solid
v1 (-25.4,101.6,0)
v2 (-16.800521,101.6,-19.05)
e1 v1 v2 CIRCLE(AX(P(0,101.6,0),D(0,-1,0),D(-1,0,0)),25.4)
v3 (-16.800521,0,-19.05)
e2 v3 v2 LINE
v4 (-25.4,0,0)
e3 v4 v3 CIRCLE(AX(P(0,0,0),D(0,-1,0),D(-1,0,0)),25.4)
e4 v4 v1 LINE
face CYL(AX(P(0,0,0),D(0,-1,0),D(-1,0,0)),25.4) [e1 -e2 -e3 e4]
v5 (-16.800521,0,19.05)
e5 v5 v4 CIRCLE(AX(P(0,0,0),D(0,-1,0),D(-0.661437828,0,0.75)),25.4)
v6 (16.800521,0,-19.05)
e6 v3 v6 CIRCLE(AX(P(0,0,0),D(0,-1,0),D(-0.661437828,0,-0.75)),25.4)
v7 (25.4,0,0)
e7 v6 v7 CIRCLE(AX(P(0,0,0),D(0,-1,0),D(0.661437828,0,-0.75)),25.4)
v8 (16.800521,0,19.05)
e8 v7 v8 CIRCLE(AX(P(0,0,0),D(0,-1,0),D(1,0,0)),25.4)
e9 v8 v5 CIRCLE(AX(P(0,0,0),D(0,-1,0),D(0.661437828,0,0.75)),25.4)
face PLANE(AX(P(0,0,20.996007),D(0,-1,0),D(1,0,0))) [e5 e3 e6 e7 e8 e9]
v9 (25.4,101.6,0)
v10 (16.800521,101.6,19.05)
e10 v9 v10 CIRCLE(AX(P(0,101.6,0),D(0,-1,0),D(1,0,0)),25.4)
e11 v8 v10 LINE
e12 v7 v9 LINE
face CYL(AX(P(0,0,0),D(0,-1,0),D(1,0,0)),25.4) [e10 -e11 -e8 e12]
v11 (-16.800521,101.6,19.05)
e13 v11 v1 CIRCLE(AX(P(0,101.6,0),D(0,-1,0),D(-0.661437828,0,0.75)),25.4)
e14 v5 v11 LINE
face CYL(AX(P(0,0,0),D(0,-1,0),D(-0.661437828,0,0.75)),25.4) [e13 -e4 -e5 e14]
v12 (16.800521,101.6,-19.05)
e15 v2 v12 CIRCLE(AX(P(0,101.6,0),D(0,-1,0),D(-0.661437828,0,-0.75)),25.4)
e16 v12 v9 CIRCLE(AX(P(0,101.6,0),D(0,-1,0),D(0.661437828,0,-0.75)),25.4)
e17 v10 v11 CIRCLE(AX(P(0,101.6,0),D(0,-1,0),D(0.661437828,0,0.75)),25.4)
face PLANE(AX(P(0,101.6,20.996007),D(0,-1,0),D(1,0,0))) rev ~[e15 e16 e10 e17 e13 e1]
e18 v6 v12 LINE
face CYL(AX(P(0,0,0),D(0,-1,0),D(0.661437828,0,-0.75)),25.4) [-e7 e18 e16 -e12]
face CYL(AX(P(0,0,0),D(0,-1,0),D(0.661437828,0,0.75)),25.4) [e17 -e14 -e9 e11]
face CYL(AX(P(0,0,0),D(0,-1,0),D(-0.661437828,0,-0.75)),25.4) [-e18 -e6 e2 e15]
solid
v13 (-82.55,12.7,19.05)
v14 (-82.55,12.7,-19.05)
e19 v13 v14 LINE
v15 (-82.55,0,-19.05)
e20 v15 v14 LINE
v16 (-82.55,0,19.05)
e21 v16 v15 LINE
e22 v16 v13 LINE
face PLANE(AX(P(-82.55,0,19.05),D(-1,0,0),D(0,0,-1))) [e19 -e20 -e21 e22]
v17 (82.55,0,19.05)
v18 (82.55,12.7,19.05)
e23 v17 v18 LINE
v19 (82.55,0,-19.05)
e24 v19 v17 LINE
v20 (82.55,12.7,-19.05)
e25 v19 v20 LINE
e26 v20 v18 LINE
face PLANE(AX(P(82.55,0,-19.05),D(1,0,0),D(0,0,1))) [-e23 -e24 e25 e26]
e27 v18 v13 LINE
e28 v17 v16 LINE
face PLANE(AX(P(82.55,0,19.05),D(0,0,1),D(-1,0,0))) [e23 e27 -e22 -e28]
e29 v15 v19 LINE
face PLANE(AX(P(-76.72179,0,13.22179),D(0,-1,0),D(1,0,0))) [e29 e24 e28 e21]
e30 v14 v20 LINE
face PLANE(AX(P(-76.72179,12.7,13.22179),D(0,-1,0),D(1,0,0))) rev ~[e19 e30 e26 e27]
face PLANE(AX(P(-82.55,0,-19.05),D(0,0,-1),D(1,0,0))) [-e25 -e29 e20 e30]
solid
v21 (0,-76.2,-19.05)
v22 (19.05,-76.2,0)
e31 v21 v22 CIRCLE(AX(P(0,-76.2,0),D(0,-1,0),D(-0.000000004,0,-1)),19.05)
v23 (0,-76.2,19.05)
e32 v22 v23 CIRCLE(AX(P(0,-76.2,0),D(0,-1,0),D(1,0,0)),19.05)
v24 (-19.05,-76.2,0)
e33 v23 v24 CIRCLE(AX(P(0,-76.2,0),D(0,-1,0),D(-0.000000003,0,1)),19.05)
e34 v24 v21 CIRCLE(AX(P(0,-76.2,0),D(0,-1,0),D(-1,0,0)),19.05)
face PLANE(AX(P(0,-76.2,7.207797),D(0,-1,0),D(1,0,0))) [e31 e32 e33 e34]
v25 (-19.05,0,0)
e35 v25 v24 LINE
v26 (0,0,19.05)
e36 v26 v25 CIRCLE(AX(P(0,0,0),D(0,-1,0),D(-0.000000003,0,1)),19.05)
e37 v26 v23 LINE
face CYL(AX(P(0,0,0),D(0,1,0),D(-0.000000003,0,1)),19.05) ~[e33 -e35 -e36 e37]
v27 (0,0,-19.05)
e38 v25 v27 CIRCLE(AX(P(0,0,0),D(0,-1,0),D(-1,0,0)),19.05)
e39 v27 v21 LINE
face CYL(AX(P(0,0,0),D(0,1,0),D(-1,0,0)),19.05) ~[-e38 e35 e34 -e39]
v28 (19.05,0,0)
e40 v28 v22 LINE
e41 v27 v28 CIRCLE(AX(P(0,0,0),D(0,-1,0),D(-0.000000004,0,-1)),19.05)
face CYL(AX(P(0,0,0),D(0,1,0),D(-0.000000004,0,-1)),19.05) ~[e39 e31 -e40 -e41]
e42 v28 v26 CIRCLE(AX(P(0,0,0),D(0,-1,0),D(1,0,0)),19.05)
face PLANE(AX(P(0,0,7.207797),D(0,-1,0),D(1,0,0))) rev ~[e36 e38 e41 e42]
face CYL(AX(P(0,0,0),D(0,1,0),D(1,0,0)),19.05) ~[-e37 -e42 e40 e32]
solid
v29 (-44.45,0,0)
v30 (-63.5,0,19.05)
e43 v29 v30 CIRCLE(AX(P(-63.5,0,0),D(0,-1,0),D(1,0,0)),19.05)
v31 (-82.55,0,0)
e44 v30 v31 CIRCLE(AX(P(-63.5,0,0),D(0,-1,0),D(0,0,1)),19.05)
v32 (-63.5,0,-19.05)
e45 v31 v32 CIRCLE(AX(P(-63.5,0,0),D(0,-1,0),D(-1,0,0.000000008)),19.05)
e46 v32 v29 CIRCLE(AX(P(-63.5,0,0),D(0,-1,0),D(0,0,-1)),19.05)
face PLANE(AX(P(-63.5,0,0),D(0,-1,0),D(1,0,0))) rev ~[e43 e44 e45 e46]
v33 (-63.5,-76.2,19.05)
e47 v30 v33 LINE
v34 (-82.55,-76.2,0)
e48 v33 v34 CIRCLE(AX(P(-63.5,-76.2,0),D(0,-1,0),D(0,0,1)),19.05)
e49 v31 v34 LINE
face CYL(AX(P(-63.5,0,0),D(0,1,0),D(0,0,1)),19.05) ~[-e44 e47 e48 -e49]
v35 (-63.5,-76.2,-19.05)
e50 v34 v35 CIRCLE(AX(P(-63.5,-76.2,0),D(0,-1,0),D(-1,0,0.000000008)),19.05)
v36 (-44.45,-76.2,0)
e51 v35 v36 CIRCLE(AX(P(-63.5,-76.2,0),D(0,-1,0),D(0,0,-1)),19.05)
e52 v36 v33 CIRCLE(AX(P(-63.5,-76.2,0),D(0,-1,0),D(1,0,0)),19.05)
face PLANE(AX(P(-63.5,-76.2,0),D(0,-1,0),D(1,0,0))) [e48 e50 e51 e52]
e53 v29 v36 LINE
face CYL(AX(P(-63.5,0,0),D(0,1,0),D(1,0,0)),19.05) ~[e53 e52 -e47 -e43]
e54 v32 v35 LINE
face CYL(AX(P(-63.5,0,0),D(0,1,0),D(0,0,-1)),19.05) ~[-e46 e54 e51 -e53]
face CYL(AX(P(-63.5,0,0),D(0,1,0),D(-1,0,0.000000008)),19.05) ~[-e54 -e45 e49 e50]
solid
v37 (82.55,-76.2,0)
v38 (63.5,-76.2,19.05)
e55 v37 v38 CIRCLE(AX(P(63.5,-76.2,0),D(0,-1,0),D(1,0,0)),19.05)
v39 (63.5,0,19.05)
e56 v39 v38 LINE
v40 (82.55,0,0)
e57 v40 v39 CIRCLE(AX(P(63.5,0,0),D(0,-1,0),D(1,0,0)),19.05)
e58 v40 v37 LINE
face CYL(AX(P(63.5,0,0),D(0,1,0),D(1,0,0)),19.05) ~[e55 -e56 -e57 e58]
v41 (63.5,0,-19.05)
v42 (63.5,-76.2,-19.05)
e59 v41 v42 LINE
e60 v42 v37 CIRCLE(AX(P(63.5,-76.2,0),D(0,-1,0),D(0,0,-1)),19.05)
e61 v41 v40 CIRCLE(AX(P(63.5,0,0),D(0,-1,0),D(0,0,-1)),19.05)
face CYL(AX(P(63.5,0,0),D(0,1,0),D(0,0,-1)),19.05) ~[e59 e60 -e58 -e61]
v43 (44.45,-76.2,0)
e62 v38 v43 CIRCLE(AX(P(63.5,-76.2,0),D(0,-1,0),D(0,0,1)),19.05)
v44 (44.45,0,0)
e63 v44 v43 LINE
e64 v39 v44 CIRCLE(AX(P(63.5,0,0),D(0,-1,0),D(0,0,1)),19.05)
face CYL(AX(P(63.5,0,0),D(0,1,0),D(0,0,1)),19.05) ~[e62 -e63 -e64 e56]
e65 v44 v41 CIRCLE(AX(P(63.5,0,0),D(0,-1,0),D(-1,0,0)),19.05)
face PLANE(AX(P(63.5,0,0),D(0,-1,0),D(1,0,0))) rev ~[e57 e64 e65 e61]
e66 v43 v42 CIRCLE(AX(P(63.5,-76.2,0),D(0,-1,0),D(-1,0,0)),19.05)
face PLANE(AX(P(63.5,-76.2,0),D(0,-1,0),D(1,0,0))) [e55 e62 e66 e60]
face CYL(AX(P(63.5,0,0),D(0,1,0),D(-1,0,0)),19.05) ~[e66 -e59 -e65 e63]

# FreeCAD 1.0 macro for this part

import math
import FreeCAD as App
import Part
import Sketcher

V = App.Vector
Q = App.Units.Quantity


def add_polygon(sketch, points):
    """Adds a closed chain of lines whose ends are joined by coincident constraints."""
    first, n = sketch.GeometryCount, len(points)
    for a, b in zip(points, points[1:] + points[:1]):
        sketch.addGeometry(Part.LineSegment(App.Vector(*a, 0), App.Vector(*b, 0)), False)
    for i in range(n):
        sketch.addConstraint(Sketcher.Constraint("Coincident", first + i, 2, first + (i + 1) % n, 1))

doc = App.newDocument("Part")
body = doc.addObject("PartDesign::Body", "Body")

# Sketch on XZ plane
sketch1 = body.newObject("Sketcher::SketchObject", "Sketch")
sketch1.AttachmentSupport = (doc.getObject("XZ_Plane"), [""])
sketch1.MapMode = "FlatFace"
sketch1.addGeometry([
    Part.ArcOfCircle(Part.Circle(V(-64, 0, 0), V(0, 0, 1), 19), math.radians(-90), math.radians(0)),
    Part.ArcOfCircle(Part.Circle(V(-64, 0, 0), V(0, 0, 1), 19), math.radians(0), math.radians(90)),
    Part.ArcOfCircle(Part.Circle(V(-64, 0, 0), V(0, 0, 1), 19), math.radians(90), math.radians(180)),
    Part.ArcOfCircle(Part.Circle(V(-64, 0, 0), V(0, 0, 1), 19), math.radians(180), math.radians(270)),
], False)
sketch1.addConstraint([
    Sketcher.Constraint("Tangent", 0, 2, 1, 1),
    Sketcher.Constraint("Tangent", 1, 2, 2, 1),
    Sketcher.Constraint("Tangent", 2, 2, 3, 1),
    Sketcher.Constraint("Tangent", 3, 2, 0, 1),
    Sketcher.Constraint("Equal", 0, 1),
    Sketcher.Constraint("Symmetric", 1, 2, 3, 2, -1),
    Sketcher.Constraint("PointOnObject", 0, 2, -1),
    Sketcher.Constraint("PointOnObject", 2, 2, -1),
    Sketcher.Constraint("Vertical", 3, 3, 1, 2),
    Sketcher.Constraint("Radius", 0, Q("0.75 in")),
    Sketcher.Constraint("DistanceX", 0, 3, -1, 1, Q("2.5 in")),
])
pad1 = body.newObject("PartDesign::Pad", "Pad")
pad1.Profile = sketch1
pad1.Length = Q("3 in")
body2 = doc.addObject("PartDesign::Body", "Body001")

# Sketch on XZ plane
sketch2 = body2.newObject("Sketcher::SketchObject", "Sketch001")
sketch2.AttachmentSupport = (doc.getObject("XZ_Plane001"), [""])
sketch2.MapMode = "FlatFace"
sketch2.addGeometry([
    Part.ArcOfCircle(Part.Circle(V(64, 0, 0), V(0, 0, 1), 19), math.radians(0), math.radians(90)),
    Part.ArcOfCircle(Part.Circle(V(64, 0, 0), V(0, 0, 1), 19), math.radians(90), math.radians(180)),
    Part.ArcOfCircle(Part.Circle(V(64, 0, 0), V(0, 0, 1), 19), math.radians(180), math.radians(270)),
    Part.ArcOfCircle(Part.Circle(V(64, 0, 0), V(0, 0, 1), 19), math.radians(-90), math.radians(0)),
], False)
sketch2.addConstraint([
    Sketcher.Constraint("Tangent", 0, 2, 1, 1),
    Sketcher.Constraint("Tangent", 1, 2, 2, 1),
    Sketcher.Constraint("Tangent", 2, 2, 3, 1),
    Sketcher.Constraint("Tangent", 3, 2, 0, 1),
    Sketcher.Constraint("Equal", 0, 1),
    Sketcher.Constraint("Symmetric", 0, 2, 2, 2, -1),
    Sketcher.Constraint("PointOnObject", 1, 2, -1),
    Sketcher.Constraint("PointOnObject", 3, 2, -1),
    Sketcher.Constraint("Vertical", 3, 3, 0, 2),
    Sketcher.Constraint("Radius", 0, Q("0.75 in")),
    Sketcher.Constraint("DistanceX", -1, 1, 0, 3, Q("2.5 in")),
])
pad2 = body2.newObject("PartDesign::Pad", "Pad001")
pad2.Profile = sketch2
pad2.Length = Q("3 in")
body3 = doc.addObject("PartDesign::Body", "Body002")

# Sketch on XZ plane
sketch3 = body3.newObject("Sketcher::SketchObject", "Sketch002")
sketch3.AttachmentSupport = (doc.getObject("XZ_Plane002"), [""])
sketch3.MapMode = "FlatFace"
sketch3.addGeometry([
    Part.ArcOfCircle(Part.Circle(V(0, 0, 0), V(0, 0, 1), 19), math.radians(90), math.radians(180)),
    Part.ArcOfCircle(Part.Circle(V(0, 0, 0), V(0, 0, 1), 19), math.radians(180), math.radians(270)),
    Part.ArcOfCircle(Part.Circle(V(0, 0, 0), V(0, 0, 1), 19), math.radians(-90), math.radians(0)),
    Part.ArcOfCircle(Part.Circle(V(0, 0, 0), V(0, 0, 1), 19), math.radians(0), math.radians(90)),
], False)
sketch3.addConstraint([
    Sketcher.Constraint("Tangent", 0, 2, 1, 1),
    Sketcher.Constraint("Tangent", 1, 2, 2, 1),
    Sketcher.Constraint("Tangent", 2, 2, 3, 1),
    Sketcher.Constraint("Tangent", 3, 2, 0, 1),
    Sketcher.Constraint("Coincident", 0, 3, -1, 1),
    Sketcher.Constraint("Equal", 0, 1),
    Sketcher.Constraint("PointOnObject", 0, 2, -1),
    Sketcher.Constraint("PointOnObject", 1, 2, -2),
    Sketcher.Constraint("PointOnObject", 2, 2, -1),
    Sketcher.Constraint("PointOnObject", 3, 2, -2),
    Sketcher.Constraint("Radius", 0, Q("0.75 in")),
])
pad3 = body3.newObject("PartDesign::Pad", "Pad002")
pad3.Profile = sketch3
pad3.Length = Q("3 in")
body4 = doc.addObject("PartDesign::Body", "Body003")

# Sketch on XZ plane
sketch4 = body4.newObject("Sketcher::SketchObject", "Sketch003")
sketch4.AttachmentSupport = (doc.getObject("XZ_Plane003"), [""])
sketch4.MapMode = "FlatFace"
add_polygon(sketch4, [(-83, -19), (83, -19), (83, 19), (-83, 19)])  # lines 0-3
sketch4.addConstraint([
    Sketcher.Constraint("Horizontal", 0),
    Sketcher.Constraint("Vertical", 1),
    Sketcher.Constraint("Horizontal", 2),
    Sketcher.Constraint("Vertical", 3),
    Sketcher.Constraint("Symmetric", 0, 2, 2, 2, -1, 1),
    Sketcher.Constraint("DistanceX", 0, 1, 0, 2, Q("6.5 in")),
    Sketcher.Constraint("DistanceY", 1, 1, 1, 2, Q("1.5 in")),
])
pad4 = body4.newObject("PartDesign::Pad", "Pad003")
pad4.Profile = sketch4
pad4.Length = Q("0.5 in")
pad4.Reversed = True
body5 = doc.addObject("PartDesign::Body", "Body004")

# Sketch on XZ plane
sketch5 = body5.newObject("Sketcher::SketchObject", "Sketch004")
sketch5.AttachmentSupport = (doc.getObject("XZ_Plane004"), [""])
sketch5.MapMode = "FlatFace"
sketch5.addGeometry([
    Part.ArcOfCircle(Part.Circle(V(0, 0, 0), V(0, 0, 1), 25), math.radians(49), math.radians(131)),  # 0
    Part.ArcOfCircle(Part.Circle(V(0, 0, 0), V(0, 0, 1), 25), math.radians(131), math.radians(180)),  # 1
    Part.ArcOfCircle(Part.Circle(V(0, 0, 0), V(0, 0, 1), 25), math.radians(180), math.radians(229)),  # 2
    Part.ArcOfCircle(Part.Circle(V(0, 0, 0), V(0, 0, 1), 25), math.radians(-131), math.radians(-49)),  # 3
    Part.ArcOfCircle(Part.Circle(V(0, 0, 0), V(0, 0, 1), 25), math.radians(-49), math.radians(0)),  # 4
    Part.ArcOfCircle(Part.Circle(V(0, 0, 0), V(0, 0, 1), 25), math.radians(0), math.radians(49)),  # 5
], False)
sketch5.addConstraint([
    Sketcher.Constraint("Tangent", 0, 2, 1, 1),
    Sketcher.Constraint("Tangent", 1, 2, 2, 1),
    Sketcher.Constraint("Tangent", 2, 2, 3, 1),
    Sketcher.Constraint("Tangent", 3, 2, 4, 1),
    Sketcher.Constraint("Tangent", 4, 2, 5, 1),
    Sketcher.Constraint("Tangent", 5, 2, 0, 1),
    Sketcher.Constraint("Coincident", 0, 3, -1, 1),
    Sketcher.Constraint("Coincident", 2, 3, -1, 1),
    Sketcher.Constraint("Equal", 2, 3),
    Sketcher.Constraint("PointOnObject", 1, 2, -1),
    Sketcher.Constraint("PointOnObject", 4, 2, -1),
    Sketcher.Constraint("Horizontal", 2, 2, 3, 2),
    Sketcher.Constraint("Horizontal", 0, 2, 5, 2),
    Sketcher.Constraint("Vertical", 0, 2, 2, 2),
    Sketcher.Constraint("Radius", 0, Q("1 in")),
    Sketcher.Constraint("DistanceY", -1, 1, 0, 2, Q("0.75 in")),
])
pad5 = body5.newObject("PartDesign::Pad", "Pad004")
pad5.Profile = sketch5
pad5.Length = Q("4 in")
pad5.Reversed = True

doc.recompute()
